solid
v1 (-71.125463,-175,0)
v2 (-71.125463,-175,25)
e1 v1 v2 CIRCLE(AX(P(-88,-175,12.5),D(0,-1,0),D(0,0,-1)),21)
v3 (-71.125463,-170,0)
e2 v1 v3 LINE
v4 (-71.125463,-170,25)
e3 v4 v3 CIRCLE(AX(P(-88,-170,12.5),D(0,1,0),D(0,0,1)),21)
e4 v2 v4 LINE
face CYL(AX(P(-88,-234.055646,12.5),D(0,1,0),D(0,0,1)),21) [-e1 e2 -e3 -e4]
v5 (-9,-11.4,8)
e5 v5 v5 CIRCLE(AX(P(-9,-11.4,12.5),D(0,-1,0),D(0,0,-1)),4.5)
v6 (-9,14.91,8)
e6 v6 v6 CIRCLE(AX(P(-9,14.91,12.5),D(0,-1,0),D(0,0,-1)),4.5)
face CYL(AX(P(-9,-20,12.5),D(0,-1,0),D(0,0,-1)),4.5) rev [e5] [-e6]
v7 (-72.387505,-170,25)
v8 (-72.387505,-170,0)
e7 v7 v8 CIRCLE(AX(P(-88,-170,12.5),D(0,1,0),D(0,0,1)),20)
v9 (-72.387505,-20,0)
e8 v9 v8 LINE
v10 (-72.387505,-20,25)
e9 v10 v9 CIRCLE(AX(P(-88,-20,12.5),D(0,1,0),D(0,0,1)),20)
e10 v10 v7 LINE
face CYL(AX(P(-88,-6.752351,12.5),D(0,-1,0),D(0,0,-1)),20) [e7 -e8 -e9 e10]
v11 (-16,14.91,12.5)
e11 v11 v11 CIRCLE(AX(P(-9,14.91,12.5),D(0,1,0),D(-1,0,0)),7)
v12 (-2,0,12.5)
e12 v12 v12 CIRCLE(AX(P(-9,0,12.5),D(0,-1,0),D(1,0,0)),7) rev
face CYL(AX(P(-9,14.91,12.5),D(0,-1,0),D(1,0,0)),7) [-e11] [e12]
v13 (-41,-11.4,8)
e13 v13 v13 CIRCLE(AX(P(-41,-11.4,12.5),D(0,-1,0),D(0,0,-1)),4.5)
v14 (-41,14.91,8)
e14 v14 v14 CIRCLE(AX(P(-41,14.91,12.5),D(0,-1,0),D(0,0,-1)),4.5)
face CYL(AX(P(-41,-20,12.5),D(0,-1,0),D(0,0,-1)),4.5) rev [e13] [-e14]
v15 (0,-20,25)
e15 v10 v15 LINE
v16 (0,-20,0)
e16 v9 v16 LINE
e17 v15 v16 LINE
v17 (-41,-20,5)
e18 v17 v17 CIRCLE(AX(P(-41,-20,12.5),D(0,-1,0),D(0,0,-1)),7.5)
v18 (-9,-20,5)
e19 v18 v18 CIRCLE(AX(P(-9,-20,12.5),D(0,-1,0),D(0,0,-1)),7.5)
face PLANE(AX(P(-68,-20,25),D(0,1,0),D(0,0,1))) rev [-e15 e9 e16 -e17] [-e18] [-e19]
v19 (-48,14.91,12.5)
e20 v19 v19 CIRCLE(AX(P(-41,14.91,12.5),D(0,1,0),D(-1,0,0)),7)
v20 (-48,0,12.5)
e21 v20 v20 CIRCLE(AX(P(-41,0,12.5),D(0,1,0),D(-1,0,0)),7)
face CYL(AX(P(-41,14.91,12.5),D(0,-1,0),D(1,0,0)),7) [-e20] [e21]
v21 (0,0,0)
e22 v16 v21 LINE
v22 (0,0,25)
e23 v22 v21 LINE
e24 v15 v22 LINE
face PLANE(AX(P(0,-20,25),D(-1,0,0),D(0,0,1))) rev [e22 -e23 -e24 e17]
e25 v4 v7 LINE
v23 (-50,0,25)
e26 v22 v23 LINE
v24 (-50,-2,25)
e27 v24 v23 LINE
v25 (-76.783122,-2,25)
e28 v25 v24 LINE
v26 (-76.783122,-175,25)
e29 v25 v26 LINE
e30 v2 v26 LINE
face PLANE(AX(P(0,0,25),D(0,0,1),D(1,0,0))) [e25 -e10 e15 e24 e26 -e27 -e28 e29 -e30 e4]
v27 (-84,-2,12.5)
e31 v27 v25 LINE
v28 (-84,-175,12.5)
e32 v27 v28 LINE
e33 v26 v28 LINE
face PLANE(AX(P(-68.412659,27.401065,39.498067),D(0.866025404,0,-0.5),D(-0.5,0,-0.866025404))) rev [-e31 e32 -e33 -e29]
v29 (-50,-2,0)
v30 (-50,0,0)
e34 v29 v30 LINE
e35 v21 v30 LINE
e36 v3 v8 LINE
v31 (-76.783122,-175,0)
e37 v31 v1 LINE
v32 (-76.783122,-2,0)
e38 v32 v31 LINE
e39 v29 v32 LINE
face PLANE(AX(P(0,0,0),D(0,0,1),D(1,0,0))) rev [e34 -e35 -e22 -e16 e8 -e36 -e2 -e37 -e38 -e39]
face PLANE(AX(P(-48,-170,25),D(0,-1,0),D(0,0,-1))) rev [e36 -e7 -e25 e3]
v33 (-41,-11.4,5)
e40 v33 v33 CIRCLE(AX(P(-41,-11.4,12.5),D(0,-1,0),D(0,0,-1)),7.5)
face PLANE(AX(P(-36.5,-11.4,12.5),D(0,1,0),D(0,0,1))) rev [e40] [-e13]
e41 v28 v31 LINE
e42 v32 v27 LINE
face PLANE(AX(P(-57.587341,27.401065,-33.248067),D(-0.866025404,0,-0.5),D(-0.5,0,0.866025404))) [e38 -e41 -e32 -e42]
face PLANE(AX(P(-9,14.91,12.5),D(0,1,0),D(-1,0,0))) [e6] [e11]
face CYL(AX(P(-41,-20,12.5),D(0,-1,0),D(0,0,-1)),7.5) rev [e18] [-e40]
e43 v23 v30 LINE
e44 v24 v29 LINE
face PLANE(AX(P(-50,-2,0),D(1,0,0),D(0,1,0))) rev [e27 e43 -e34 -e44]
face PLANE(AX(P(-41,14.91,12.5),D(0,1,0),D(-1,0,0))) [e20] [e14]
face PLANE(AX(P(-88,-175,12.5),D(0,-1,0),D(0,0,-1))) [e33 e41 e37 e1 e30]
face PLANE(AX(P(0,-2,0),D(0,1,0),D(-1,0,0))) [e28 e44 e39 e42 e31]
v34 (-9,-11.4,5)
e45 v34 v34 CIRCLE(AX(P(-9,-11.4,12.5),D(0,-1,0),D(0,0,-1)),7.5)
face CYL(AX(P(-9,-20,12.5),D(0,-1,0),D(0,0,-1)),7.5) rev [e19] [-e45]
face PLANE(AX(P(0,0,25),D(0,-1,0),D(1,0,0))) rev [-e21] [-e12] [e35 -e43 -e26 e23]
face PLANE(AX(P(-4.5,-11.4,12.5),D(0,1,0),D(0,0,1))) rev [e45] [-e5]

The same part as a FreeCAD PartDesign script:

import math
import FreeCAD as App
import Part
import Sketcher

V = App.Vector
Q = App.Units.Quantity

doc = App.newDocument("Part")
body = doc.addObject("PartDesign::Body", "Body")

sketch1 = body.newObject("Sketcher::SketchObject", "Sketch")
sketch1.AttachmentSupport = (doc.getObject("XY_Plane"), [""])
sketch1.MapMode = "FlatFace"
sketch1.addGeometry([
    Part.LineSegment(V(0, 0, 0), V(-88, 0, 0)),
    Part.LineSegment(V(-88, 0, 0), V(-88, -200, 0)),
    Part.LineSegment(V(-88, -200, 0), V(-48, -200, 0)),
    Part.LineSegment(V(-48, -200, 0), V(-48, -170, 0)),
    Part.LineSegment(V(-48, -170, 0), V(-68, -170, 0)),
    Part.LineSegment(V(-68, -170, 0), V(-68, -20, 0)),
    Part.LineSegment(V(-68, -20, 0), V(0, -20, 0)),
    Part.LineSegment(V(0, -20, 0), V(0, 0, 0)),
], False)
sketch1.addConstraint([
    Sketcher.Constraint("Coincident", 0, 2, 1, 1),
    Sketcher.Constraint("Coincident", 1, 2, 2, 1),
    Sketcher.Constraint("Coincident", 2, 2, 3, 1),
    Sketcher.Constraint("Coincident", 3, 2, 4, 1),
    Sketcher.Constraint("Coincident", 4, 2, 5, 1),
    Sketcher.Constraint("Coincident", 5, 2, 6, 1),
    Sketcher.Constraint("Coincident", 6, 2, 7, 1),
    Sketcher.Constraint("Coincident", 7, 2, 0, 1),
    Sketcher.Constraint("Horizontal", 0),
    Sketcher.Constraint("Vertical", 1),
    Sketcher.Constraint("Horizontal", 2),
    Sketcher.Constraint("Vertical", 3),
    Sketcher.Constraint("Horizontal", 4),
    Sketcher.Constraint("Vertical", 5),
    Sketcher.Constraint("Horizontal", 6),
    Sketcher.Constraint("Vertical", 7),
    Sketcher.Constraint("Coincident", 7, 2, -1, 1),
    Sketcher.Constraint("Equal", 4, 7),
    Sketcher.Constraint("DistanceX", 0, 2, 0, 1, 88.0),
    Sketcher.Constraint("DistanceX", 2, 1, 2, 2, 40.0),
    Sketcher.Constraint("DistanceX", 4, 2, 4, 1, 20.0),
    Sketcher.Constraint("DistanceY", 1, 2, 1, 1, 200.0),
    Sketcher.Constraint("DistanceY", 3, 1, 3, 2, 30.0),
])
pad1 = body.newObject("PartDesign::Pad", "Pad")
pad1.Profile = sketch1
pad1.Length = 25

sketch2 = body.newObject("Sketcher::SketchObject", "Sketch001")
sketch2.AttachmentSupport = (doc.getObject("XZ_Plane"), [""])
sketch2.MapMode = "FlatFace"
sketch2.addGeometry([
    Part.Circle(V(-41, 12, 0), V(0, 0, 1), 7),
    Part.Circle(V(-9, 12, 0), V(0, 0, 1), 7),
], False)
sketch2.addConstraint([
    Sketcher.Constraint("Equal", 0, 1),
    Sketcher.Constraint("Horizontal", 0, 3, 1, 3),
    Sketcher.Constraint("Diameter", 0, 14.0),
    Sketcher.Constraint("DistanceX", 0, 3, -1, 1, 41.0),
    Sketcher.Constraint("DistanceX", 1, 3, -1, 1, 9.0),
    Sketcher.Constraint("DistanceY", -1, 1, 0, 3, 12.5),
])
pad2 = body.newObject("PartDesign::Pad", "Pad001")
pad2.Profile = sketch2
pad2.Length = 14.91
pad2.Reversed = True

sketch3 = body.newObject("Sketcher::SketchObject", "Sketch002")
sketch3.AttachmentSupport = (doc.getObject("XZ_Plane"), [""])
sketch3.MapMode = "FlatFace"
sketch3.AttachmentOffset = App.Placement(V(0, 0, 20), App.Rotation())
sketch3.addGeometry([
    Part.Circle(V(-9, 12.5, 0), V(0, 0, 1), 4.5),
    Part.Circle(V(-41, 12.5, 0), V(0, 0, 1), 4.5),
], False)
sketch3.addConstraint([
    Sketcher.Constraint("Equal", 0, 1),
    Sketcher.Constraint("Horizontal", 0, 3, 1, 3),
    Sketcher.Constraint("Diameter", 0, 9.0),
    Sketcher.Constraint("DistanceX", 0, 3, -1, 1, 9.0),
    Sketcher.Constraint("DistanceX", 1, 3, -1, 1, 41.0),
    Sketcher.Constraint("DistanceY", -1, 1, 0, 3, 12.5),
])
doc.recompute()
hole = body.newObject("PartDesign::Hole", "Hole")
hole.Profile = sketch3
hole.ThreadType = "None"
hole.Diameter = 9
hole.DepthType = "Dimension"
hole.Depth = 34.91
hole.DrillPoint = "Flat"
hole.HoleCutType = "Counterbore"
hole.HoleCutDiameter = 15
hole.HoleCutDepth = 8.6

sketch4 = body.newObject("Sketcher::SketchObject", "Sketch003")
sketch4.AttachmentSupport = (doc.getObject("XZ_Plane"), [""])
sketch4.MapMode = "FlatFace"
sketch4.AttachmentOffset = App.Placement(V(0, 0, 170), App.Rotation())
sketch4.addGeometry([
    Part.LineSegment(V(-68, 0, 0), V(-72.4, 0, 0)),
    Part.ArcOfCircle(Part.Circle(V(-88, 12.5, 0), V(0, 0, 1), 20), math.radians(-39), math.radians(0)),
    Part.LineSegment(V(-68, 12.5, 0), V(-68, 0, 0)),
    Part.LineSegment(V(-68, 25, 0), V(-68, 12.5, 0)),
    Part.ArcOfCircle(Part.Circle(V(-88, 12.5, 0), V(0, 0, 1), 20), math.radians(0), math.radians(39)),
    Part.LineSegment(V(-72.4, 25, 0), V(-68, 25, 0)),
], False)
sketch4.addConstraint([
    Sketcher.Constraint("Coincident", 0, 2, 1, 1),
    Sketcher.Constraint("Tangent", 1, 2, 2, 1),
    Sketcher.Constraint("Coincident", 2, 2, 0, 1),
    Sketcher.Constraint("Tangent", 3, 2, 4, 1),
    Sketcher.Constraint("Coincident", 4, 2, 5, 1),
    Sketcher.Constraint("Coincident", 5, 2, 3, 1),
    Sketcher.Constraint("Horizontal", 0),
    Sketcher.Constraint("Vertical", 2),
    Sketcher.Constraint("Vertical", 3),
    Sketcher.Constraint("Horizontal", 5),
    Sketcher.Constraint("Coincident", 4, 3, 1, 3),
    Sketcher.Constraint("Equal", 1, 4),
    Sketcher.Constraint("PointOnObject", 0, 2, -1),
    Sketcher.Constraint("Vertical", 0, 2, 4, 2),
    Sketcher.Constraint("Radius", 1, 20.0),
    Sketcher.Constraint("DistanceY", 2, 2, 2, 1, 12.5),
    Sketcher.Constraint("DistanceX", 1, 3, -1, 1, 88.0),
])
pocket1 = body.newObject("PartDesign::Pocket", "Pocket")
pocket1.Profile = sketch4
pocket1.Length = 150

sketch5 = body.newObject("Sketcher::SketchObject", "Sketch004")
sketch5.AttachmentSupport = (doc.getObject("XZ_Plane"), [""])
sketch5.MapMode = "FlatFace"
sketch5.AttachmentOffset = App.Placement(V(0, 0, 170), App.Rotation())
sketch5.addGeometry([
    Part.LineSegment(V(-48, 25, 0), V(-48, 0, 0)),
    Part.LineSegment(V(-48, 0, 0), V(-71.1, 0, 0)),
    Part.ArcOfCircle(Part.Circle(V(-88, 12.5, 0), V(0, 0, 1), 21), math.radians(-36.53), math.radians(-33.2)),
    Part.ArcOfCircle(Part.Circle(V(-88, 12.5, 0), V(0, 0, 1), 21), math.radians(-33), math.radians(33)),
    Part.ArcOfCircle(Part.Circle(V(-88, 12.5, 0), V(0, 0, 1), 21), math.radians(33.2), math.radians(36.53)),
    Part.LineSegment(V(-71.1, 25, 0), V(-48, 25, 0)),
], False)
sketch5.addConstraint([
    Sketcher.Constraint("Coincident", 0, 2, 1, 1),
    Sketcher.Constraint("Coincident", 1, 2, 2, 1),
    Sketcher.Constraint("Tangent", 2, 2, 3, 1),
    Sketcher.Constraint("Tangent", 3, 2, 4, 1),
    Sketcher.Constraint("Coincident", 4, 2, 5, 1),
    Sketcher.Constraint("Coincident", 5, 2, 0, 1),
    Sketcher.Constraint("Vertical", 0),
    Sketcher.Constraint("Horizontal", 1),
    Sketcher.Constraint("Horizontal", 5),
    Sketcher.Constraint("Coincident", 4, 3, 2, 3),
    Sketcher.Constraint("PointOnObject", 0, 2, -1),
    Sketcher.Constraint("Vertical", 2, 2, 3, 2),
    Sketcher.Constraint("Vertical", 1, 2, 4, 2),
    Sketcher.Constraint("Radius", 2, 21.0),
    Sketcher.Constraint("DistanceY", 0, 2, 0, 1, 25.0),
    Sketcher.Constraint("DistanceX", 2, 3, -1, 1, 88.0),
    Sketcher.Constraint("DistanceX", 0, 2, -1, 1, 48.0),
    Sketcher.Constraint("DistanceY", -1, 1, 2, 2, 1.0),
])
pocket2 = body.newObject("PartDesign::Pocket", "Pocket001")
pocket2.Profile = sketch5
pocket2.Length = 30
pocket2.Reversed = True

sketch6 = body.newObject("Sketcher::SketchObject", "Sketch005")
sketch6.AttachmentSupport = (doc.getObject("XZ_Plane"), [""])
sketch6.MapMode = "FlatFace"
sketch6.AttachmentOffset = App.Placement(V(0, 0, 180), App.Rotation())
sketch6.addGeometry([
    Part.LineSegment(V(-71, 25, 0), V(-88, 25, 0)),
    Part.LineSegment(V(-88, 25, 0), V(-88, 0, 0)),
    Part.LineSegment(V(-88, 0, 0), V(-71, 0, 0)),
    Part.ArcOfCircle(Part.Circle(V(-88, 12, 0), V(0, 0, 1), 21), math.radians(-37), math.radians(37)),
], False)
sketch6.addConstraint([
    Sketcher.Constraint("Coincident", 0, 2, 1, 1),
    Sketcher.Constraint("Coincident", 1, 2, 2, 1),
    Sketcher.Constraint("Coincident", 2, 2, 3, 1),
    Sketcher.Constraint("Coincident", 3, 2, 0, 1),
    Sketcher.Constraint("Horizontal", 0),
    Sketcher.Constraint("Vertical", 1),
    Sketcher.Constraint("Horizontal", 2),
    Sketcher.Constraint("PointOnObject", 1, 2, -1),
    Sketcher.Constraint("Vertical", 3, 3, 0, 2),
    Sketcher.Constraint("Vertical", 2, 2, 3, 2),
    Sketcher.Constraint("Radius", 3, 21.0),
    Sketcher.Constraint("DistanceY", 1, 2, 1, 1, 25.0),
    Sketcher.Constraint("DistanceX", 3, 3, -1, 1, 88.0),
])
pocket3 = body.newObject("PartDesign::Pocket", "Pocket002")
pocket3.Profile = sketch6
pocket3.Length = 20
pocket3.Reversed = True

sketch7 = body.newObject("Sketcher::SketchObject", "Sketch006")
sketch7.AttachmentSupport = (doc.getObject("XZ_Plane"), [""])
sketch7.MapMode = "FlatFace"
sketch7.AttachmentOffset = App.Placement(V(0, 0, 180), App.Rotation())
sketch7.addGeometry([
    Part.LineSegment(V(-88, 25, 0), V(-88, 0, 0)),
    Part.LineSegment(V(-88, 0, 0), V(-77, 0, 0)),
    Part.LineSegment(V(-77, 0, 0), V(-84, 12, 0)),
    Part.LineSegment(V(-84, 12, 0), V(-77, 25, 0)),
    Part.LineSegment(V(-77, 25, 0), V(-88, 25, 0)),
], False)
sketch7.addConstraint([
    Sketcher.Constraint("Coincident", 0, 2, 1, 1),
    Sketcher.Constraint("Coincident", 1, 2, 2, 1),
    Sketcher.Constraint("Coincident", 2, 2, 3, 1),
    Sketcher.Constraint("Coincident", 3, 2, 4, 1),
    Sketcher.Constraint("Coincident", 4, 2, 0, 1),
    Sketcher.Constraint("Vertical", 0),
    Sketcher.Constraint("Horizontal", 1),
    Sketcher.Constraint("Horizontal", 4),
    Sketcher.Constraint("PointOnObject", 0, 2, -1),
    Sketcher.Constraint("Vertical", 1, 2, 3, 2),
    Sketcher.Constraint("Equal", 2, 3),
    Sketcher.Constraint("DistanceY", 0, 2, 0, 1, 25.0),
    Sketcher.Constraint("Angle", 2, Q("120 deg")),
    Sketcher.Constraint("DistanceX", 0, 2, -1, 1, 88.0),
    Sketcher.Constraint("DistanceX", 2, 2, -1, 1, 84.0),
])
pocket4 = body.newObject("PartDesign::Pocket", "Pocket003")
pocket4.Profile = sketch7
pocket4.Length = 180

sketch8 = body.newObject("Sketcher::SketchObject", "Sketch007")
sketch8.AttachmentSupport = (doc.getObject("XZ_Plane"), [""])
sketch8.MapMode = "FlatFace"
sketch8.AttachmentOffset = App.Placement(V(0, 0, 175), App.Rotation())
sketch8.addGeometry([
    Part.LineSegment(V(-77, 25, 0), V(-84, 12, 0)),
    Part.LineSegment(V(-84, 12, 0), V(-77, 0, 0)),
    Part.LineSegment(V(-77, 0, 0), V(-71, 0, 0)),
    Part.ArcOfCircle(Part.Circle(V(-88, 12, 0), V(0, 0, 1), 21), math.radians(-37), math.radians(37)),
    Part.LineSegment(V(-71, 25, 0), V(-77, 25, 0)),
], False)
sketch8.addConstraint([
    Sketcher.Constraint("Coincident", 0, 2, 1, 1),
    Sketcher.Constraint("Coincident", 1, 2, 2, 1),
    Sketcher.Constraint("Coincident", 2, 2, 3, 1),
    Sketcher.Constraint("Coincident", 3, 2, 4, 1),
    Sketcher.Constraint("Coincident", 4, 2, 0, 1),
    Sketcher.Constraint("Horizontal", 2),
    Sketcher.Constraint("Horizontal", 4),
    Sketcher.Constraint("PointOnObject", 1, 2, -1),
    Sketcher.Constraint("Horizontal", 3, 3, 0, 2),
    Sketcher.Constraint("Vertical", 2, 2, 3, 2),
    Sketcher.Constraint("Vertical", 1, 2, 4, 2),
    Sketcher.Constraint("Radius", 3, 21.0),
    Sketcher.Constraint("Angle", 0, Q("-120 deg")),
    Sketcher.Constraint("DistanceX", 3, 3, -1, 1, 88.0),
    Sketcher.Constraint("DistanceX", 0, 2, -1, 1, 84.0),
    Sketcher.Constraint("DistanceY", -1, 1, 3, 2, 25.0),
])
pocket5 = body.newObject("PartDesign::Pocket", "Pocket004")
pocket5.Profile = sketch8
pocket5.Length = 5
pocket5.Reversed = True

sketch9 = body.newObject("Sketcher::SketchObject", "Sketch008")
sketch9.AttachmentSupport = (doc.getObject("XZ_Plane"), [""])
sketch9.MapMode = "FlatFace"
sketch9.addGeometry([
    Part.LineSegment(V(-77, 25, 0), V(-50, 25, 0)),
    Part.LineSegment(V(-50, 25, 0), V(-50, 0, 0)),
    Part.LineSegment(V(-50, 0, 0), V(-77, 0, 0)),
    Part.LineSegment(V(-77, 0, 0), V(-84, 12, 0)),
    Part.LineSegment(V(-84, 12, 0), V(-77, 25, 0)),
], False)
sketch9.addConstraint([
    Sketcher.Constraint("Coincident", 0, 2, 1, 1),
    Sketcher.Constraint("Coincident", 1, 2, 2, 1),
    Sketcher.Constraint("Coincident", 2, 2, 3, 1),
    Sketcher.Constraint("Coincident", 3, 2, 4, 1),
    Sketcher.Constraint("Coincident", 4, 2, 0, 1),
    Sketcher.Constraint("Horizontal", 0),
    Sketcher.Constraint("Vertical", 1),
    Sketcher.Constraint("Horizontal", 2),
    Sketcher.Constraint("PointOnObject", 1, 2, -1),
    Sketcher.Constraint("Vertical", 2, 2, 4, 2),
    Sketcher.Constraint("Equal", 3, 4),
    Sketcher.Constraint("DistanceY", 1, 2, 1, 1, 25.0),
    Sketcher.Constraint("Angle", 3, Q("120 deg")),
    Sketcher.Constraint("DistanceX", 0, 2, -1, 1, 50.0),
    Sketcher.Constraint("DistanceX", 3, 2, -1, 1, 84.0),
])
pocket6 = body.newObject("PartDesign::Pocket", "Pocket005")
pocket6.Profile = sketch9
pocket6.Length = 2
pocket6.Reversed = True

doc.recompute()
